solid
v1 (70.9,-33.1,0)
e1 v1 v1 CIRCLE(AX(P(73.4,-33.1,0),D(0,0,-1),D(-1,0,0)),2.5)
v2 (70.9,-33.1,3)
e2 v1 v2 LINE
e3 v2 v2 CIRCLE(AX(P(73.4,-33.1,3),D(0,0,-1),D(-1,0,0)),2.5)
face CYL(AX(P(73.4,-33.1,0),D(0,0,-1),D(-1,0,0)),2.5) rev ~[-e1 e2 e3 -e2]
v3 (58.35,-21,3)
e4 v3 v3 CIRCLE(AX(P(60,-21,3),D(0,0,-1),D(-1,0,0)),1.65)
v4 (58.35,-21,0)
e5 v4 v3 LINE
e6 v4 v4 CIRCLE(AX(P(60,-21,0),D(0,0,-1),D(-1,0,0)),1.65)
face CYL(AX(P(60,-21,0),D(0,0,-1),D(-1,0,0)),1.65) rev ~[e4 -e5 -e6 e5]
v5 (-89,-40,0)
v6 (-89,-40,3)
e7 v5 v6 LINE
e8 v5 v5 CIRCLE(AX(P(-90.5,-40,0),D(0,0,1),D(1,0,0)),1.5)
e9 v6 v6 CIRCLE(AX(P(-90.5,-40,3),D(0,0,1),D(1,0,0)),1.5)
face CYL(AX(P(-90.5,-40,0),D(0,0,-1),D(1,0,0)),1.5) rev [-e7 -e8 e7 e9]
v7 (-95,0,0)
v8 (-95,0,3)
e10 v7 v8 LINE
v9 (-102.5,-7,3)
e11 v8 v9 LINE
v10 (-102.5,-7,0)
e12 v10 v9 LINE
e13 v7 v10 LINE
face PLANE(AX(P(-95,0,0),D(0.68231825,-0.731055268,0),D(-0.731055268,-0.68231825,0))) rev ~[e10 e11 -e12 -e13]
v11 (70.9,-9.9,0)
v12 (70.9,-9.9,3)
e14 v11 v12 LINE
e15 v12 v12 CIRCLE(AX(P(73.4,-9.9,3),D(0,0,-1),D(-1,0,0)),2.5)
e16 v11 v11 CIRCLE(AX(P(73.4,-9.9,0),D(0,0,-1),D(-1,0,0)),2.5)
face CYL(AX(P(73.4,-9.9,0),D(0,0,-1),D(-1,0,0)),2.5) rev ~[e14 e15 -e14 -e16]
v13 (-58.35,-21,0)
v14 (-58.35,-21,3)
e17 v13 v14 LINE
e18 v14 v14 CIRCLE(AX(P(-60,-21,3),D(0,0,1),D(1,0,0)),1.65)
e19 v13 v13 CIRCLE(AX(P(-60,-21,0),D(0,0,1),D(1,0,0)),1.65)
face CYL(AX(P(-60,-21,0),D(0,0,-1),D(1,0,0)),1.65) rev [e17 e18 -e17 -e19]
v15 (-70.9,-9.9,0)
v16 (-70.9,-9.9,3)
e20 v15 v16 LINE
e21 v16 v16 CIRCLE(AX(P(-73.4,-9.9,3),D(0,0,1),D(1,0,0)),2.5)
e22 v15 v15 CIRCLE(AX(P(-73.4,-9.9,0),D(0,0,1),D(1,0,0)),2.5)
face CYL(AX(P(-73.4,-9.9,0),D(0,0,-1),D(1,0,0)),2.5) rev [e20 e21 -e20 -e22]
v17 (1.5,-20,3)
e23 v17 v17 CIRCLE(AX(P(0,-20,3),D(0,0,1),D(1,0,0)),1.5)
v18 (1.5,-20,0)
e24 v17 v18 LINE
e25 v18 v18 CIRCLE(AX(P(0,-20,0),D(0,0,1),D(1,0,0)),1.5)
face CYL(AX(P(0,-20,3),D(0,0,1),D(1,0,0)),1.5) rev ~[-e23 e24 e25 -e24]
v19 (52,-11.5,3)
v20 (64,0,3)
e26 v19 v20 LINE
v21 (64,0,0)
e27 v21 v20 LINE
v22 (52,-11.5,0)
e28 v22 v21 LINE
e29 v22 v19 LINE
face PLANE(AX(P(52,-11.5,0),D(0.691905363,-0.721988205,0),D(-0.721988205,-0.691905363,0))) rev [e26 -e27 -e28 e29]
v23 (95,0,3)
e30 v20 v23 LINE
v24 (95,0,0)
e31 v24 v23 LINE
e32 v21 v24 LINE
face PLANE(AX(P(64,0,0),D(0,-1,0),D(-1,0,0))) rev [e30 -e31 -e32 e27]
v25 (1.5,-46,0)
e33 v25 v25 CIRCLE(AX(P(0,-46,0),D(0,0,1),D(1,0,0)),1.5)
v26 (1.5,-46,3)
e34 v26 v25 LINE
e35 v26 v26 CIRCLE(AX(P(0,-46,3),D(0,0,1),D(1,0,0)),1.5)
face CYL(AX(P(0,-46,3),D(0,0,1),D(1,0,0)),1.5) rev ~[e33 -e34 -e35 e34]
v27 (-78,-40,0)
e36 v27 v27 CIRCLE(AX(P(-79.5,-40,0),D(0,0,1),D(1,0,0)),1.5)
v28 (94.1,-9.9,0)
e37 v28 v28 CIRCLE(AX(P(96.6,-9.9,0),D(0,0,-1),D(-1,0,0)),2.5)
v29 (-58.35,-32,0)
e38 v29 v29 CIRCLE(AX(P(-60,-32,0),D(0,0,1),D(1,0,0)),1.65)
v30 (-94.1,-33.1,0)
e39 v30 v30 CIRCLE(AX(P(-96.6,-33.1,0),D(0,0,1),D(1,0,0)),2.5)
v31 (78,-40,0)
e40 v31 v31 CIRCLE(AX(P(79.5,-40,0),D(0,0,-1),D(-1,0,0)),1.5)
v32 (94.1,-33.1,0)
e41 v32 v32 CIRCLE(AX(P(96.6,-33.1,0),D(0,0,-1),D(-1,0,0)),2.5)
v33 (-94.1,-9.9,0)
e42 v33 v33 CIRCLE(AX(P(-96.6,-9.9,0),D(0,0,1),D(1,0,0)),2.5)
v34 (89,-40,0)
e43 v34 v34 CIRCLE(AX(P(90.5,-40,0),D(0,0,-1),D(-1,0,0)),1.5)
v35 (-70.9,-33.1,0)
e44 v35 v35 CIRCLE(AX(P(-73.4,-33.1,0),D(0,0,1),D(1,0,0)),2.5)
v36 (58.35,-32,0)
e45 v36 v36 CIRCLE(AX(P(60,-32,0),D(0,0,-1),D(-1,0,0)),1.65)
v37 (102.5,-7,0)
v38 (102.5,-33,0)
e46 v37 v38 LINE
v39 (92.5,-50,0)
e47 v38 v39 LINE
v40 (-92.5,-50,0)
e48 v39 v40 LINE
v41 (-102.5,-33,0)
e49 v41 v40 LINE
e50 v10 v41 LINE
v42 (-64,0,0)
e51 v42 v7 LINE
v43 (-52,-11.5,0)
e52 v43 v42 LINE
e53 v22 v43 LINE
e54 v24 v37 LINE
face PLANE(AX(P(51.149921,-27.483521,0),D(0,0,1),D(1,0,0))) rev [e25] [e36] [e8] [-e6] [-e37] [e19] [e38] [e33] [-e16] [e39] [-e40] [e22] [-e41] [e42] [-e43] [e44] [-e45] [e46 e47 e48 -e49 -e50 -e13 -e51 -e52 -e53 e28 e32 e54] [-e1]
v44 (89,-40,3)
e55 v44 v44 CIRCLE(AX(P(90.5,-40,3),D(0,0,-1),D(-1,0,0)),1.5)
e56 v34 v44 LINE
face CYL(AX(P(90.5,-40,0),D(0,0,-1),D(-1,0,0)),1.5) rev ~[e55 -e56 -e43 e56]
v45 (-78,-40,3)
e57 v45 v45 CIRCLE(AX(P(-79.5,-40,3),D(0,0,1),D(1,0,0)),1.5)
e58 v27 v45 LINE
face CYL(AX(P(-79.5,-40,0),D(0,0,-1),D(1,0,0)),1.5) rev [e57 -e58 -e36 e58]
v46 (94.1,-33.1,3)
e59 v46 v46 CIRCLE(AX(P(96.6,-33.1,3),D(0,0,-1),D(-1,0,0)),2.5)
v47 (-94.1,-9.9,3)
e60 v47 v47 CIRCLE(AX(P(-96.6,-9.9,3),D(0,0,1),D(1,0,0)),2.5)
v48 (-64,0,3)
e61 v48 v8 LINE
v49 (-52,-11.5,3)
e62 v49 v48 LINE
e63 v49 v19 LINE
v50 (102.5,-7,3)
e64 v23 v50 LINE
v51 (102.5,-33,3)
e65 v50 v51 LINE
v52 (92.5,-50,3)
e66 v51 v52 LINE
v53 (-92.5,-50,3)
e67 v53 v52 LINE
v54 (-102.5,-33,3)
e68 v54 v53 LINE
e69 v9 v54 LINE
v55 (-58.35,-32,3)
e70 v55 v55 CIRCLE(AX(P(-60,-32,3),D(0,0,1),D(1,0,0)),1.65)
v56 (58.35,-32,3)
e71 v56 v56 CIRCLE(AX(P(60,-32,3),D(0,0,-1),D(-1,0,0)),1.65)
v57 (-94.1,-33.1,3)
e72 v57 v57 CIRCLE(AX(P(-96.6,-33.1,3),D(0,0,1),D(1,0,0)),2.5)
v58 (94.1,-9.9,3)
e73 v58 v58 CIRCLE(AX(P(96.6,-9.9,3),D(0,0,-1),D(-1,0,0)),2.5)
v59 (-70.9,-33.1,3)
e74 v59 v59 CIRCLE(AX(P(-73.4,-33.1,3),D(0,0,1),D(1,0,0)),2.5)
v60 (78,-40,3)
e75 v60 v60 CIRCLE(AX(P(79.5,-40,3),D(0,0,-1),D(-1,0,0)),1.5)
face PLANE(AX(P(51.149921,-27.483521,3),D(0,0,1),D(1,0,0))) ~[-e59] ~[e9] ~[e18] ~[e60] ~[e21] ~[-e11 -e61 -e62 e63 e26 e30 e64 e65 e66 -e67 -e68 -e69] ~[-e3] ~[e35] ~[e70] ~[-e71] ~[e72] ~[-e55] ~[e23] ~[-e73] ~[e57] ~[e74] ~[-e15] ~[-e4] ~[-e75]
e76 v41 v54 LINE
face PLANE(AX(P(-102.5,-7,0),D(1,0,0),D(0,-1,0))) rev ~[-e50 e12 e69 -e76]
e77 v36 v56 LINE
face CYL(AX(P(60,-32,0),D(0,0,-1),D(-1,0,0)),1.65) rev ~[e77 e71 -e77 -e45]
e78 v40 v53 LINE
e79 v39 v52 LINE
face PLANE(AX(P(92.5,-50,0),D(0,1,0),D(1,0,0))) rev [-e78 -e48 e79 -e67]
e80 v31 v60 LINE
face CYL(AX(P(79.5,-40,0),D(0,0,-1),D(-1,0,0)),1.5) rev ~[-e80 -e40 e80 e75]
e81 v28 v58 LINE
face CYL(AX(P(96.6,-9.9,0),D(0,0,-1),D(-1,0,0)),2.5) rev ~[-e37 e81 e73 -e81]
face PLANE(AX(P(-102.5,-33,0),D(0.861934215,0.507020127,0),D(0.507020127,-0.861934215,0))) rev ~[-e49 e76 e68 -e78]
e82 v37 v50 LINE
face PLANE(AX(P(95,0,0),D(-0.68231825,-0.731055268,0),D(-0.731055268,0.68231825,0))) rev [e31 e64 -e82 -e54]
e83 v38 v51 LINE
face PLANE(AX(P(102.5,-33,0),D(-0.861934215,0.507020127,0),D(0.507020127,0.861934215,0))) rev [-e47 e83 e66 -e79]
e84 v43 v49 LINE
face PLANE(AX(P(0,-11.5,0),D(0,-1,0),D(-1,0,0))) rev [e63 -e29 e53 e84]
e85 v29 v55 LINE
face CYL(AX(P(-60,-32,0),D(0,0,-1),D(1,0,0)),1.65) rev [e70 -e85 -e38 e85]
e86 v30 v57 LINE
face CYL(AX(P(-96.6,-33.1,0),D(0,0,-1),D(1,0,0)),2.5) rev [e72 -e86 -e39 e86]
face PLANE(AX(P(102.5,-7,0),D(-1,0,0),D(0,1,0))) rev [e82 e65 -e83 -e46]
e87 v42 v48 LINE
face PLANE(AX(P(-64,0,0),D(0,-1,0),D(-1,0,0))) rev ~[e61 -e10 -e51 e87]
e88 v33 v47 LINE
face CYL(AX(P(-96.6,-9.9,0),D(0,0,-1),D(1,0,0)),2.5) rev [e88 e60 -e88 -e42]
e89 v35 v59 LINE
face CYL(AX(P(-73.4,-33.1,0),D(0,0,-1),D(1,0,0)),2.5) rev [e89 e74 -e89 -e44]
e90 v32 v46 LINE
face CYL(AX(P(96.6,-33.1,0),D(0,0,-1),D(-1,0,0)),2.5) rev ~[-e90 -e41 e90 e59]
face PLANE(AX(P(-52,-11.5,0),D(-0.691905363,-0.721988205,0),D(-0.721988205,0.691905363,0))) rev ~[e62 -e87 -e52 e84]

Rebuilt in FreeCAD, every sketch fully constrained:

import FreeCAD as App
import Part
import Sketcher
from FreeCAD import Vector

doc = App.newDocument("Part")
body = doc.addObject("PartDesign::Body", "Body")

# Sketch on XY plane
sketch1 = doc.addObject("Sketcher::SketchObject", "Sketch")
body.addObject(sketch1)
sketch1.AttachmentSupport = (doc.XY_Plane, [""])
sketch1.MapMode = "FlatFace"
sketch1.addGeometry(Part.LineSegment(Vector(0, -11.5, 0), Vector(-52, -11.5, 0)), False)
sketch1.addGeometry(Part.LineSegment(Vector(-52, -11.5, 0), Vector(-64, 0, 0)), False)
sketch1.addGeometry(Part.LineSegment(Vector(-64, 0, 0), Vector(-95, 0, 0)), False)
sketch1.addGeometry(Part.LineSegment(Vector(-95, 0, 0), Vector(-102.5, -7, 0)), False)
sketch1.addGeometry(Part.LineSegment(Vector(-102.5, -7, 0), Vector(-102.5, -33, 0)), False)
sketch1.addGeometry(Part.LineSegment(Vector(-102.5, -33, 0), Vector(-92.5, -50, 0)), False)
sketch1.addGeometry(Part.LineSegment(Vector(-92.5, -50, 0), Vector(0, -50, 0)), False)
sketch1.addGeometry(Part.LineSegment(Vector(0, -50, 0), Vector(0, -11.5, 0)), False)
sketch1.addGeometry(Part.Circle(Vector(-90.5, -40, 0), Vector(0, 0, 1), 1.5), False)
sketch1.addGeometry(Part.Circle(Vector(-96.6, -33.1, 0), Vector(0, 0, 1), 2.5), False)
sketch1.addGeometry(Part.Circle(Vector(-79.5, -40, 0), Vector(0, 0, 1), 1.5), False)
sketch1.addGeometry(Part.Circle(Vector(-73.4, -33.1, 0), Vector(0, 0, 1), 2.5), False)
sketch1.addGeometry(Part.Circle(Vector(-60, -32, 0), Vector(0, 0, 1), 1.6), False)
sketch1.addGeometry(Part.Circle(Vector(-96.6, -9.9, 0), Vector(0, 0, 1), 2.5), False)
sketch1.addGeometry(Part.Circle(Vector(-60, -21, 0), Vector(0, 0, 1), 1.6), False)
sketch1.addGeometry(Part.Circle(Vector(-73.4, -9.9, 0), Vector(0, 0, 1), 2.5), False)
sketch1.addConstraint(Sketcher.Constraint("Coincident", 0, 2, 1, 1))
sketch1.addConstraint(Sketcher.Constraint("Coincident", 1, 2, 2, 1))
sketch1.addConstraint(Sketcher.Constraint("Coincident", 2, 2, 3, 1))
sketch1.addConstraint(Sketcher.Constraint("Coincident", 3, 2, 4, 1))
sketch1.addConstraint(Sketcher.Constraint("Coincident", 4, 2, 5, 1))
sketch1.addConstraint(Sketcher.Constraint("Coincident", 5, 2, 6, 1))
sketch1.addConstraint(Sketcher.Constraint("Coincident", 6, 2, 7, 1))
sketch1.addConstraint(Sketcher.Constraint("Coincident", 7, 2, 0, 1))
sketch1.addConstraint(Sketcher.Constraint("Horizontal", 0))
sketch1.addConstraint(Sketcher.Constraint("Horizontal", 2))
sketch1.addConstraint(Sketcher.Constraint("Vertical", 4))
sketch1.addConstraint(Sketcher.Constraint("Horizontal", 6))
sketch1.addConstraint(Sketcher.Constraint("Vertical", 7))
sketch1.addConstraint(Sketcher.Constraint("Equal", 8, 10))
sketch1.addConstraint(Sketcher.Constraint("Equal", 9, 11))
sketch1.addConstraint(Sketcher.Constraint("Equal", 11, 13))
sketch1.addConstraint(Sketcher.Constraint("Equal", 12, 14))
sketch1.addConstraint(Sketcher.Constraint("Equal", 13, 15))
sketch1.addConstraint(Sketcher.Constraint("PointOnObject", 1, 2, -1))
sketch1.addConstraint(Sketcher.Constraint("PointOnObject", 6, 2, -2))
sketch1.addConstraint(Sketcher.Constraint("Horizontal", 8, 3, 10, 3))
sketch1.addConstraint(Sketcher.Constraint("Horizontal", 9, 3, 11, 3))
sketch1.addConstraint(Sketcher.Constraint("Horizontal", 13, 3, 15, 3))
sketch1.addConstraint(Sketcher.Constraint("Vertical", 9, 3, 13, 3))
sketch1.addConstraint(Sketcher.Constraint("Vertical", 12, 3, 14, 3))
sketch1.addConstraint(Sketcher.Constraint("Vertical", 11, 3, 15, 3))
sketch1.addConstraint(Sketcher.Constraint("Diameter", 8, 3.0))
sketch1.addConstraint(Sketcher.Constraint("Diameter", 9, 5.0))
sketch1.addConstraint(Sketcher.Constraint("Diameter", 12, 3.3))
sketch1.addConstraint(Sketcher.Constraint("DistanceX", 0, 2, 0, 1, 52.0))
sketch1.addConstraint(Sketcher.Constraint("DistanceX", 2, 2, 2, 1, 31.0))
sketch1.addConstraint(Sketcher.Constraint("DistanceY", 4, 2, 4, 1, 26.0))
sketch1.addConstraint(Sketcher.Constraint("DistanceX", 6, 1, 6, 2, 92.5))
sketch1.addConstraint(Sketcher.Constraint("DistanceY", 7, 1, 7, 2, 38.5))
sketch1.addConstraint(Sketcher.Constraint("DistanceY", 8, 3, -1, 1, 40.0))
sketch1.addConstraint(Sketcher.Constraint("DistanceX", 12, 3, -1, 1, 60.0))
sketch1.addConstraint(Sketcher.Constraint("DistanceY", 12, 3, -1, 1, 32.0))
sketch1.addConstraint(Sketcher.Constraint("DistanceY", 14, 3, -1, 1, 21.0))
sketch1.addConstraint(Sketcher.Constraint("DistanceX", 1, 2, -1, 1, 64.0))
sketch1.addConstraint(Sketcher.Constraint("DistanceY", 3, 2, -1, 1, 7.0))
sketch1.addConstraint(Sketcher.Constraint("DistanceY", 5, 2, -1, 1, 50.0))
sketch1.addConstraint(Sketcher.Constraint("DistanceX", 8, 3, 10, 3, 11.0))
sketch1.addConstraint(Sketcher.Constraint("DistanceX", 3, 2, 8, 3, 12.0))
sketch1.addConstraint(Sketcher.Constraint("DistanceX", 5, 2, 8, 3, 2.0))
sketch1.addConstraint(Sketcher.Constraint("DistanceX", 9, 3, -1, 1, 96.6))
sketch1.addConstraint(Sketcher.Constraint("DistanceY", 9, 3, -1, 1, 33.1))
sketch1.addConstraint(Sketcher.Constraint("DistanceX", 11, 3, -1, 1, 73.4))
sketch1.addConstraint(Sketcher.Constraint("DistanceY", 13, 3, -1, 1, 9.9))
pad1 = doc.addObject("PartDesign::Pad", "Pad")
body.addObject(pad1)
pad1.Profile = sketch1
pad1.Length = 3
doc.recompute()

mirrored = doc.addObject("PartDesign::Mirrored", "Mirrored")
body.addObject(mirrored)
mirrored.Originals = [pad1]
mirrored.MirrorPlane = (doc.YZ_Plane, [""])
body.Tip = mirrored

# Sketch on XY plane
sketch2 = doc.addObject("Sketcher::SketchObject", "Sketch001")
body.addObject(sketch2)
sketch2.AttachmentSupport = (doc.XY_Plane, [""])
sketch2.MapMode = "FlatFace"
sketch2.AttachmentOffset = App.Placement(Vector(0, 0, 3), App.Rotation())
sketch2.addGeometry(Part.Circle(Vector(0, -20, 0), Vector(0, 0, 1), 1.5), False)
sketch2.addGeometry(Part.Circle(Vector(0, -46, 0), Vector(0, 0, 1), 1.5), False)
sketch2.addConstraint(Sketcher.Constraint("Equal", 0, 1))
sketch2.addConstraint(Sketcher.Constraint("PointOnObject", 0, 3, -2))
sketch2.addConstraint(Sketcher.Constraint("PointOnObject", 1, 3, -2))
sketch2.addConstraint(Sketcher.Constraint("Diameter", 0, 3.0))
sketch2.addConstraint(Sketcher.Constraint("DistanceY", 0, 3, -1, 1, 20.0))
sketch2.addConstraint(Sketcher.Constraint("DistanceY", 1, 3, -1, 1, 46.0))
pocket1 = doc.addObject("PartDesign::Pocket", "Pocket")
body.addObject(pocket1)
pocket1.Profile = sketch2
pocket1.Type = "ThroughAll"

doc.recompute()
